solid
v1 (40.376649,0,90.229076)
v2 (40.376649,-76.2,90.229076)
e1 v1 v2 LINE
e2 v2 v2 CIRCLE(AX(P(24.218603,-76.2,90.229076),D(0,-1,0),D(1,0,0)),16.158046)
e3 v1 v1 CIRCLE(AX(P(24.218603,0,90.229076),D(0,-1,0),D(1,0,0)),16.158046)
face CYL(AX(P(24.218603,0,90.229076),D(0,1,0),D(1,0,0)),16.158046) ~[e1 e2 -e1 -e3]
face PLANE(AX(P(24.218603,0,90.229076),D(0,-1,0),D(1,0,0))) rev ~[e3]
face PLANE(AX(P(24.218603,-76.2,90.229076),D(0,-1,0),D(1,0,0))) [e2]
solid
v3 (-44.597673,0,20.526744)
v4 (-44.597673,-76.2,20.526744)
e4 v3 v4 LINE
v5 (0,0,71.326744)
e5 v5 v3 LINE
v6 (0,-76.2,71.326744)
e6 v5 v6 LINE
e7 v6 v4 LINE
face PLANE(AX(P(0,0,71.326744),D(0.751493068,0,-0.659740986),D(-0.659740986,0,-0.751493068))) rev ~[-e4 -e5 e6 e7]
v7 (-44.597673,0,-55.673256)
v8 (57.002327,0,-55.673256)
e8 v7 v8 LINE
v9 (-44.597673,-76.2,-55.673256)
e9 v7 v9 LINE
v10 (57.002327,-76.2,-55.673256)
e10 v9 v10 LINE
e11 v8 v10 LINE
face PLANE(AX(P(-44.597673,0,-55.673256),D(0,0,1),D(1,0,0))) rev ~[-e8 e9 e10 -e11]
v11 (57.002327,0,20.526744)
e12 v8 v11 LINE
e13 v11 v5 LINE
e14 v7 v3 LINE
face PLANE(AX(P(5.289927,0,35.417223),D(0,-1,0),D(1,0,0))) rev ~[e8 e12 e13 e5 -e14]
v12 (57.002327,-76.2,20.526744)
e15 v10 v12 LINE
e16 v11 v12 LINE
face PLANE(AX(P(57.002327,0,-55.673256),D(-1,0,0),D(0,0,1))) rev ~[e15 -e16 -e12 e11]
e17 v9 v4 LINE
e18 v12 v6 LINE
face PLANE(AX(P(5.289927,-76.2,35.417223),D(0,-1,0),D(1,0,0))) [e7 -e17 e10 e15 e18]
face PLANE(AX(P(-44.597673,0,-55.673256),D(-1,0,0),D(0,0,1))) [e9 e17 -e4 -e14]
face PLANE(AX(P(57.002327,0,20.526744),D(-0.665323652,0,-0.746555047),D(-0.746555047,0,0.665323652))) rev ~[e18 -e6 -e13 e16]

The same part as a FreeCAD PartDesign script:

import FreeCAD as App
import Part
import Sketcher

V = App.Vector
Q = App.Units.Quantity


def add_polygon(sketch, points):
    """Adds a closed chain of lines whose ends are joined by coincident constraints."""
    first, n = sketch.GeometryCount, len(points)
    for a, b in zip(points, points[1:] + points[:1]):
        sketch.addGeometry(Part.LineSegment(App.Vector(*a, 0), App.Vector(*b, 0)), False)
    for i in range(n):
        sketch.addConstraint(Sketcher.Constraint("Coincident", first + i, 2, first + (i + 1) % n, 1))

doc = App.newDocument("Part")
params = doc.addObject("Spreadsheet::Sheet", "Params")
for row, (alias, value) in enumerate([
    ("sketch1_width", "4 in"),
    ("sketch1_height", "3 in"),
    ("pad1_length", "3 in"),
], start=1):
    params.set(f"A{row}", alias)
    params.set(f"B{row}", "=" + value)
    params.setAlias(f"B{row}", alias)

body = doc.addObject("PartDesign::Body", "Body")
body.AllowCompound = True

sketch1 = body.newObject("Sketcher::SketchObject", "Sketch")
sketch1.AttachmentSupport = (doc.getObject("XZ_Plane"), [""])
sketch1.MapMode = "FlatFace"
add_polygon(sketch1, [(0, 71), (-45, 21), (-45, -56), (57, -56), (57, 21)])
sketch1.addGeometry(Part.Circle(V(24, 90, 0), V(0, 0, 1), 16), False)
sketch1.addConstraint(Sketcher.Constraint("Vertical", 1))
sketch1.addConstraint(Sketcher.Constraint("Horizontal", 2))
sketch1.addConstraint(Sketcher.Constraint("Vertical", 3))
sketch1.addConstraint(Sketcher.Constraint("PointOnObject", 4, 2, -2))
sketch1.addConstraint(Sketcher.Constraint("Horizontal", 0, 2, 3, 2))
sketch1.addConstraint(Sketcher.Constraint("DistanceX", 2, 1, 2, 2, Q("4 in")))
sketch1.addConstraint(Sketcher.Constraint("DistanceY", 1, 2, 1, 1, Q("3 in")))
sketch1.addConstraint(Sketcher.Constraint("DistanceY", 0, 2, 4, 2, Q("2 in")))
sketch1.addConstraint(Sketcher.Constraint("Diameter", 5, Q("32.316092 mm")))
sketch1.addConstraint(Sketcher.Constraint("Distance", 0, Q("67.598761 mm")))
sketch1.addConstraint(Sketcher.Constraint("DistanceY", 1, 2, 5, 3, Q("145.902332 mm")))
sketch1.addConstraint(Sketcher.Constraint("DistanceX", -1, 1, 5, 3, Q("24.218603 mm")))
sketch1.addConstraint(Sketcher.Constraint("DistanceY", -1, 1, 5, 3, Q("90.229076 mm")))
sketch1.setExpression("Constraints[10]", "Params.sketch1_width")
sketch1.setExpression("Constraints[11]", "Params.sketch1_height")
pad1 = body.newObject("PartDesign::Pad", "Pad")
pad1.Profile = sketch1
pad1.setExpression("Length", "Params.pad1_length")

doc.recompute()
